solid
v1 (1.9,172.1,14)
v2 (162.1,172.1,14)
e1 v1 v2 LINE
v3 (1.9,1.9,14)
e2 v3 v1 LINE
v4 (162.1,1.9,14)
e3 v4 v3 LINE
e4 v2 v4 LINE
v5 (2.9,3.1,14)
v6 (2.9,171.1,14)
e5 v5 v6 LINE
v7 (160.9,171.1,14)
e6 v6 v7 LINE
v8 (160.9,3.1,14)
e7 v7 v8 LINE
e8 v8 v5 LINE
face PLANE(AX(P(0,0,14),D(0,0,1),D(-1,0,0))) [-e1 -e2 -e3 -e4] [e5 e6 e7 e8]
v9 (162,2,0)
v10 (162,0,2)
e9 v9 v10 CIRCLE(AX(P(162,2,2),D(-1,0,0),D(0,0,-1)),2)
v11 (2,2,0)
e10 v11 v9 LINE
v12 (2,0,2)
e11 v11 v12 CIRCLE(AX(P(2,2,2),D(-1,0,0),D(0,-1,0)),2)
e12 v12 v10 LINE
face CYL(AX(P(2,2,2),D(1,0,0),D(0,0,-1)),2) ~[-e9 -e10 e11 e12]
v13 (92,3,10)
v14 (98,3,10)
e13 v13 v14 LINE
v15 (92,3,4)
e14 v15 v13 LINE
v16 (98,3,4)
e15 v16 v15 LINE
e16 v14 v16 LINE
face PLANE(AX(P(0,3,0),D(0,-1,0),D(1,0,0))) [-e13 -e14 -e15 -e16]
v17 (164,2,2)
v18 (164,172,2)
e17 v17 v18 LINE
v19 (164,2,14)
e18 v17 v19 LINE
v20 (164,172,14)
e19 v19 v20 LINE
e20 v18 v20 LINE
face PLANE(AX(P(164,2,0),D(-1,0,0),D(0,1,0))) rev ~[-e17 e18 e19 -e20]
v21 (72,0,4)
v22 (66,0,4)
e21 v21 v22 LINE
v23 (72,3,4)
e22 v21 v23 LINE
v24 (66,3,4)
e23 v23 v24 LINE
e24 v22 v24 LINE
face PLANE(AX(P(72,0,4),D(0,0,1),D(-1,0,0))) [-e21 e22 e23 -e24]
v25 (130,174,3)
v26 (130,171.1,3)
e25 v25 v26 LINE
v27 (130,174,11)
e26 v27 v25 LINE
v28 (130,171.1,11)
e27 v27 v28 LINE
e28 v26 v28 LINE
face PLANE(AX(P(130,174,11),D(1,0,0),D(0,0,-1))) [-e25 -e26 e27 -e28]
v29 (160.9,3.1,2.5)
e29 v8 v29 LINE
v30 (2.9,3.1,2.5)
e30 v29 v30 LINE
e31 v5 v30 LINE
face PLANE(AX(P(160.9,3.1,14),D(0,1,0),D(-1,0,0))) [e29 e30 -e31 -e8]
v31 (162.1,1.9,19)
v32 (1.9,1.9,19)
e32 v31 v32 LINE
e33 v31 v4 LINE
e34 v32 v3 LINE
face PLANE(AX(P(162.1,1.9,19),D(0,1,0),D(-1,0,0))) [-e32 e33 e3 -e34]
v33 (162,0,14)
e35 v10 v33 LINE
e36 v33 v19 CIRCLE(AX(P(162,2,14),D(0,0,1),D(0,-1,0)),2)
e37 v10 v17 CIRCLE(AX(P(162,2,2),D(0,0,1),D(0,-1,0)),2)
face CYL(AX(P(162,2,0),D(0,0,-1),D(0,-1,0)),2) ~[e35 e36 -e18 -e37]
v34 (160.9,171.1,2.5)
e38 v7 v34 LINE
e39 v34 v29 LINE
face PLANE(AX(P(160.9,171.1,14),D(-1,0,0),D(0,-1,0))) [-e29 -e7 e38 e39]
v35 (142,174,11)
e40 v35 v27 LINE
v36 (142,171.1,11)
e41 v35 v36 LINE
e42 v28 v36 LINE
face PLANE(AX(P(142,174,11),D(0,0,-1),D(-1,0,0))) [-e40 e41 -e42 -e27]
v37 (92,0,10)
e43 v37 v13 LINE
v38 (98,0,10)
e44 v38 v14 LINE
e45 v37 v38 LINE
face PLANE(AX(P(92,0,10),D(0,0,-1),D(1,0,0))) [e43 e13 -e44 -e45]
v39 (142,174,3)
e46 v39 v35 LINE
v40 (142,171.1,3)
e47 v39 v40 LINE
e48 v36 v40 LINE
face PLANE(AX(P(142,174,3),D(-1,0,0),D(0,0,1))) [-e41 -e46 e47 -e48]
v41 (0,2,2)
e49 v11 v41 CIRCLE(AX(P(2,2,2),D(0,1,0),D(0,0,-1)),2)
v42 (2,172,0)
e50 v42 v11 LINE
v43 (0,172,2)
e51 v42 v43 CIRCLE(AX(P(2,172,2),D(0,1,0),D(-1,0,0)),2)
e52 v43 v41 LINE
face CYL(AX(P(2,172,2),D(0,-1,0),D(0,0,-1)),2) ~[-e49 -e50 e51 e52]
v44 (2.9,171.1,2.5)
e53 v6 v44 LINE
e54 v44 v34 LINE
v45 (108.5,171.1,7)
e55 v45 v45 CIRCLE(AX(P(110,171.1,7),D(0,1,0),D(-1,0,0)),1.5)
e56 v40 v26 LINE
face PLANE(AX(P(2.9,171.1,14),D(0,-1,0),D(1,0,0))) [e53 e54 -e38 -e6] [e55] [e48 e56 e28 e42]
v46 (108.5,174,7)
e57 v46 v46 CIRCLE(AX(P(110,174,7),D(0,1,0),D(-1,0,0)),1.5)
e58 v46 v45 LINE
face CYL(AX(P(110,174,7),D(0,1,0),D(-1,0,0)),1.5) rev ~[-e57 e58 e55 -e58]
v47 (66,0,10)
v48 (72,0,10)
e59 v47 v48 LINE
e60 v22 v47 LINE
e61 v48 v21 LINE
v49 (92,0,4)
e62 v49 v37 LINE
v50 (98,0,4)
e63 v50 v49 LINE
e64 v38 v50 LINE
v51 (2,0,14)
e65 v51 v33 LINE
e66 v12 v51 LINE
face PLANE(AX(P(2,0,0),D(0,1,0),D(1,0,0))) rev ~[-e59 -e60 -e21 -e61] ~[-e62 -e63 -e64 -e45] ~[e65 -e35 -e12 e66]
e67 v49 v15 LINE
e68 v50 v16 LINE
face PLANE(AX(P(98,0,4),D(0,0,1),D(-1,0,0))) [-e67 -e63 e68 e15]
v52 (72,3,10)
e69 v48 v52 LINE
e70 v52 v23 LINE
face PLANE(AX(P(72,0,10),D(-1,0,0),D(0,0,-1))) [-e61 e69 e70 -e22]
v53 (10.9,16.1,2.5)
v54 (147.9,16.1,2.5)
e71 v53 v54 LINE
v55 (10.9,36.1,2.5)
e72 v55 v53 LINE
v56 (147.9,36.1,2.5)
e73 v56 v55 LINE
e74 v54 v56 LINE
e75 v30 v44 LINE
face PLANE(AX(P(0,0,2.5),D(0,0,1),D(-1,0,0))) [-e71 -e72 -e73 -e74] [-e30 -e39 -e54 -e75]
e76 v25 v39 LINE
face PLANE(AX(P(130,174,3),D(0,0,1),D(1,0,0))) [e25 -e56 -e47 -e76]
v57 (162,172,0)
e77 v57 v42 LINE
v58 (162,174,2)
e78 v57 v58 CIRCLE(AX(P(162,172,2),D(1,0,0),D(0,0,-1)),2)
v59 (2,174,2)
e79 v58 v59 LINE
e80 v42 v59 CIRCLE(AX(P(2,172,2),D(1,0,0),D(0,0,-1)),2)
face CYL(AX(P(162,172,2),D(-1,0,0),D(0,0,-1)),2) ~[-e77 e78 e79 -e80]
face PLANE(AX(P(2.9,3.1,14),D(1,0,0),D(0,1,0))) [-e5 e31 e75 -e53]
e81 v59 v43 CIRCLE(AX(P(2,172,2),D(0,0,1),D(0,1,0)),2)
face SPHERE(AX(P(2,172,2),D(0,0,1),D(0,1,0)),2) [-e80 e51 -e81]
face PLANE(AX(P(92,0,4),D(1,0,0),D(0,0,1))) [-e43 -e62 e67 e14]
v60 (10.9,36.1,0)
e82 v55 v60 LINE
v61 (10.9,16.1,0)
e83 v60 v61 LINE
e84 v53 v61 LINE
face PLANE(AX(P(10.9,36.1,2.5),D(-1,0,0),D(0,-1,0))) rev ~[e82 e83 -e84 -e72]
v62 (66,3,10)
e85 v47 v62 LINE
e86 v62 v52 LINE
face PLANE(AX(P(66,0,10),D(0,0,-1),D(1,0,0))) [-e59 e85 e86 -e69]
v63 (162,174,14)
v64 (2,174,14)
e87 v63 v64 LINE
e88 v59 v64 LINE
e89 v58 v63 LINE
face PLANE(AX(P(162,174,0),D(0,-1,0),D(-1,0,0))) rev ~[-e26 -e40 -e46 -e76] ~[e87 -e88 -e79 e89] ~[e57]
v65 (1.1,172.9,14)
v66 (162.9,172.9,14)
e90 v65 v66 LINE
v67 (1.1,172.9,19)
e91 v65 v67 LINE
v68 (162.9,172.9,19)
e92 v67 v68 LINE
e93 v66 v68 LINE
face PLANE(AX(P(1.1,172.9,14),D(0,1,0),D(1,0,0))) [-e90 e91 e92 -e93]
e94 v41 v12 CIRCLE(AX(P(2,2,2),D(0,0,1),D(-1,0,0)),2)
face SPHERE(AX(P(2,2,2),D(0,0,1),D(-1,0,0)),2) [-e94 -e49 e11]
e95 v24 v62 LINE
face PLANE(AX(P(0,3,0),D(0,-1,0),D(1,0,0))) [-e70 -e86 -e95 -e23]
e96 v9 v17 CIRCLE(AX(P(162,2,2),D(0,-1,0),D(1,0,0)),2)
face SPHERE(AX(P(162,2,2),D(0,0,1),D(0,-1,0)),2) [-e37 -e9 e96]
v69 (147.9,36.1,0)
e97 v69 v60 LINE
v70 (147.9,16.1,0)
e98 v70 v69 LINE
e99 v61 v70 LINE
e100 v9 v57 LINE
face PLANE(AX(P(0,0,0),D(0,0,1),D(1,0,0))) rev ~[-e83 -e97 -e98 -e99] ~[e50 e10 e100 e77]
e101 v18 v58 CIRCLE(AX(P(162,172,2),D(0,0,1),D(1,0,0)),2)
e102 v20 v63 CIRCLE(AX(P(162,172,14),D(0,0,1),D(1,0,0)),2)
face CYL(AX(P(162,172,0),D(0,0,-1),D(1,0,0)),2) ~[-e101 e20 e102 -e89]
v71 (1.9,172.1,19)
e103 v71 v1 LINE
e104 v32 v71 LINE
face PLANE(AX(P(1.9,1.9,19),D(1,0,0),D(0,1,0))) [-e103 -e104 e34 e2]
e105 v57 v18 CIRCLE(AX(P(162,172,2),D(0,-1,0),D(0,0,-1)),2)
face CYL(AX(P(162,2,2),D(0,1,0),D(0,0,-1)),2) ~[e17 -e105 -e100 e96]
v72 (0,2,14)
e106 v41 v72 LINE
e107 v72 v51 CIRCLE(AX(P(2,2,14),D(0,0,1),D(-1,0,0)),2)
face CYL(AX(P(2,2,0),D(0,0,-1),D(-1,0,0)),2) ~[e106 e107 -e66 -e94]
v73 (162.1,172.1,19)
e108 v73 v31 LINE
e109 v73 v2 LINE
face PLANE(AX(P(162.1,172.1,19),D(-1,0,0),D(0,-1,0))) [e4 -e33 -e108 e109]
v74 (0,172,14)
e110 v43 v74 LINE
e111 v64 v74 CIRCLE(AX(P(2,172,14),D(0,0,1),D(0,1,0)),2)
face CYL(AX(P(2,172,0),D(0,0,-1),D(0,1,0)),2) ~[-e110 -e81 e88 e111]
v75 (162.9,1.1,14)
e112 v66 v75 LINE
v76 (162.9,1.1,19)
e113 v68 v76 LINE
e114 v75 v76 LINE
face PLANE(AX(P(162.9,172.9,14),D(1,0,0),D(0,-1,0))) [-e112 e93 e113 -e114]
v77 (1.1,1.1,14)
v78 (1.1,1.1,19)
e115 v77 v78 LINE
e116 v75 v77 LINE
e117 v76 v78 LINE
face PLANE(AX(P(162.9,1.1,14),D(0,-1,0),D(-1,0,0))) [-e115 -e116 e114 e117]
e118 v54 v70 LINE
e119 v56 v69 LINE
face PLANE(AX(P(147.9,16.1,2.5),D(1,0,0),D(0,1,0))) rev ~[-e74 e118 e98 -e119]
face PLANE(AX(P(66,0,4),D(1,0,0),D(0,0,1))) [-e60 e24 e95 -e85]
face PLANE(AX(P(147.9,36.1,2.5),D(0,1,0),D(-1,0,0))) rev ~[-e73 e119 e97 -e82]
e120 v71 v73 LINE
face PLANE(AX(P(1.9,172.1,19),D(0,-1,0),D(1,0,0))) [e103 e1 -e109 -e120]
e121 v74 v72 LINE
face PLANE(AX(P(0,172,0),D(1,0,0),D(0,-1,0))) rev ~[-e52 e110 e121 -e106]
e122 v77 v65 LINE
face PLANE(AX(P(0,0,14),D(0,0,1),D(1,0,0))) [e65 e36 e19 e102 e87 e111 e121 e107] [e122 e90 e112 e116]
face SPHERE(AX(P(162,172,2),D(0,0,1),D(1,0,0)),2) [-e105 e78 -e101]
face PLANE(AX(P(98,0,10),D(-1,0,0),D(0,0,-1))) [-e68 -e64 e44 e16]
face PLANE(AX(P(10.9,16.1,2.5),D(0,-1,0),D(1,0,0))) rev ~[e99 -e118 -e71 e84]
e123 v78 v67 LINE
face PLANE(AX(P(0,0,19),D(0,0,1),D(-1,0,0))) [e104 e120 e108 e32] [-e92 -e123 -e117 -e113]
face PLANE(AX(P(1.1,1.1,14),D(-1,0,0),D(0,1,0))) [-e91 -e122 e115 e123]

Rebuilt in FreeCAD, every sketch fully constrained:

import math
import FreeCAD as App
import Part
import Sketcher

V = App.Vector


def edges_at(feature, points):
    """Names of the edges that pass closest to the given points."""
    edges = feature.Shape.Edges
    near = lambda p: min(range(len(edges)), key=lambda i: edges[i].distToShape(Part.Vertex(*p))[0])
    return sorted({f"Edge{near(p) + 1}" for p in points})


def add_polygon(sketch, points):
    """Adds a closed chain of lines whose ends are joined by coincident constraints."""
    first, n = sketch.GeometryCount, len(points)
    for a, b in zip(points, points[1:] + points[:1]):
        sketch.addGeometry(Part.LineSegment(App.Vector(*a, 0), App.Vector(*b, 0)), False)
    for i in range(n):
        sketch.addConstraint(Sketcher.Constraint("Coincident", first + i, 2, first + (i + 1) % n, 1))

doc = App.newDocument("Part")
body = doc.addObject("PartDesign::Body", "Body")

sketch1 = body.newObject("Sketcher::SketchObject", "Sketch")
sketch1.AttachmentSupport = (doc.getObject("XY_Plane"), [""])
sketch1.MapMode = "FlatFace"
sketch1.addGeometry([
    Part.ArcOfCircle(Part.Circle(V(2, 2, 0), V(0, 0, 1), 2), math.radians(180), math.radians(270)),
    Part.LineSegment(V(2, 0, 0), V(162, 0, 0)),
    Part.ArcOfCircle(Part.Circle(V(162, 2, 0), V(0, 0, 1), 2), math.radians(-90), math.radians(0)),
    Part.LineSegment(V(164, 2, 0), V(164, 172, 0)),
    Part.ArcOfCircle(Part.Circle(V(162, 172, 0), V(0, 0, 1), 2), math.radians(0), math.radians(90)),
    Part.LineSegment(V(162, 174, 0), V(2, 174, 0)),
    Part.ArcOfCircle(Part.Circle(V(2, 172, 0), V(0, 0, 1), 2), math.radians(90), math.radians(180)),
    Part.LineSegment(V(0, 172, 0), V(0, 2, 0)),
], False)
sketch1.addConstraint([
    Sketcher.Constraint("Tangent", 0, 2, 1, 1),
    Sketcher.Constraint("Tangent", 1, 2, 2, 1),
    Sketcher.Constraint("Tangent", 2, 2, 3, 1),
    Sketcher.Constraint("Tangent", 3, 2, 4, 1),
    Sketcher.Constraint("Tangent", 4, 2, 5, 1),
    Sketcher.Constraint("Tangent", 5, 2, 6, 1),
    Sketcher.Constraint("Tangent", 6, 2, 7, 1),
    Sketcher.Constraint("Tangent", 7, 2, 0, 1),
    Sketcher.Constraint("Horizontal", 1),
    Sketcher.Constraint("Vertical", 3),
    Sketcher.Constraint("Horizontal", 5),
    Sketcher.Constraint("Vertical", 7),
    Sketcher.Constraint("Equal", 0, 2),
    Sketcher.Constraint("Equal", 2, 4),
    Sketcher.Constraint("Equal", 4, 6),
    Sketcher.Constraint("PointOnObject", 0, 2, -1),
    Sketcher.Constraint("PointOnObject", 6, 2, -2),
    Sketcher.Constraint("Radius", 0, 2.0),
    Sketcher.Constraint("DistanceX", -1, 1, 2, 2, 164.0),
    Sketcher.Constraint("DistanceY", -1, 1, 4, 2, 174.0),
])
pad1 = body.newObject("PartDesign::Pad", "Pad")
pad1.Profile = sketch1
pad1.Length = 14

sketch2 = body.newObject("Sketcher::SketchObject", "Sketch001")
sketch2.AttachmentSupport = (doc.getObject("XY_Plane"), [""])
sketch2.MapMode = "FlatFace"
sketch2.AttachmentOffset = App.Placement(V(0, 0, 14), App.Rotation())
add_polygon(sketch2, [(163, 173), (1, 173), (1, 1), (163, 1)])
sketch2.addConstraint([
    Sketcher.Constraint("Horizontal", 0),
    Sketcher.Constraint("Vertical", 1),
    Sketcher.Constraint("Horizontal", 2),
    Sketcher.Constraint("Vertical", 3),
    Sketcher.Constraint("DistanceX", 0, 2, 0, 1, 161.8),
    Sketcher.Constraint("DistanceY", 1, 2, 1, 1, 171.8),
    Sketcher.Constraint("DistanceX", -1, 1, 0, 2, 1.1),
    Sketcher.Constraint("DistanceY", -1, 1, 1, 2, 1.1),
])
pad2 = body.newObject("PartDesign::Pad", "Pad001")
pad2.Profile = sketch2
pad2.Length = 5

sketch3 = body.newObject("Sketcher::SketchObject", "Sketch002")
sketch3.AttachmentSupport = (doc.getObject("XY_Plane"), [""])
sketch3.MapMode = "FlatFace"
sketch3.AttachmentOffset = App.Placement(V(0, 0, 19), App.Rotation())
add_polygon(sketch3, [(162, 172), (2, 172), (2, 2), (162, 2)])
sketch3.addConstraint([
    Sketcher.Constraint("Horizontal", 0),
    Sketcher.Constraint("Vertical", 1),
    Sketcher.Constraint("Horizontal", 2),
    Sketcher.Constraint("Vertical", 3),
    Sketcher.Constraint("DistanceX", 0, 2, 0, 1, 160.2),
    Sketcher.Constraint("DistanceY", 1, 2, 1, 1, 170.2),
    Sketcher.Constraint("DistanceX", -1, 1, 0, 2, 1.9),
    Sketcher.Constraint("DistanceY", -1, 1, 0, 2, 172.1),
])
pocket1 = body.newObject("PartDesign::Pocket", "Pocket")
pocket1.Profile = sketch3
pocket1.Length = 5

sketch4 = body.newObject("Sketcher::SketchObject", "Sketch003")
sketch4.AttachmentSupport = (doc.getObject("XY_Plane"), [""])
sketch4.MapMode = "FlatFace"
sketch4.AttachmentOffset = App.Placement(V(0, 0, 14), App.Rotation())
add_polygon(sketch4, [(161, 171), (3, 171), (3, 3), (161, 3)])
sketch4.addConstraint([
    Sketcher.Constraint("Horizontal", 0),
    Sketcher.Constraint("Vertical", 1),
    Sketcher.Constraint("Horizontal", 2),
    Sketcher.Constraint("Vertical", 3),
    Sketcher.Constraint("DistanceX", 0, 2, 0, 1, 158.0),
    Sketcher.Constraint("DistanceY", 1, 2, 1, 1, 168.0),
    Sketcher.Constraint("DistanceX", -1, 1, 0, 2, 2.9),
    Sketcher.Constraint("DistanceY", -1, 1, 0, 2, 171.1),
])
pocket2 = body.newObject("PartDesign::Pocket", "Pocket001")
pocket2.Profile = sketch4
pocket2.Length = 11.5

sketch5 = body.newObject("Sketcher::SketchObject", "Sketch004")
sketch5.AttachmentSupport = (doc.getObject("XY_Plane"), [""])
sketch5.MapMode = "FlatFace"
sketch5.AttachmentOffset = App.Placement(V(0, 0, 2.5), App.Rotation())
add_polygon(sketch5, [(11, 36), (11, 16), (148, 16), (148, 36)])
sketch5.addConstraint([
    Sketcher.Constraint("Vertical", 0),
    Sketcher.Constraint("Horizontal", 1),
    Sketcher.Constraint("Vertical", 2),
    Sketcher.Constraint("Horizontal", 3),
    Sketcher.Constraint("DistanceX", 1, 1, 1, 2, 137.0),
    Sketcher.Constraint("DistanceY", 0, 2, 0, 1, 20.0),
    Sketcher.Constraint("DistanceX", -1, 1, 0, 2, 10.9),
    Sketcher.Constraint("DistanceY", -1, 1, 0, 2, 16.1),
])
pocket3 = body.newObject("PartDesign::Pocket", "Pocket002")
pocket3.Profile = sketch5
pocket3.Length = 2.5

sketch6 = body.newObject("Sketcher::SketchObject", "Sketch005")
sketch6.AttachmentSupport = (doc.getObject("XZ_Plane"), [""])
sketch6.MapMode = "FlatFace"
add_polygon(sketch6, [(72, 10), (66, 10), (66, 4), (72, 4)])
sketch6.addConstraint([
    Sketcher.Constraint("Horizontal", 0),
    Sketcher.Constraint("Vertical", 1),
    Sketcher.Constraint("Horizontal", 2),
    Sketcher.Constraint("Vertical", 3),
    Sketcher.Constraint("Equal", 2, 1),
    Sketcher.Constraint("DistanceX", 0, 2, 0, 1, 6.0),
    Sketcher.Constraint("DistanceY", -1, 1, 1, 2, 4.0),
    Sketcher.Constraint("DistanceX", -1, 1, 0, 2, 66.0),
])
pocket4 = body.newObject("PartDesign::Pocket", "Pocket003")
pocket4.Profile = sketch6
pocket4.Length = 3

sketch7 = body.newObject("Sketcher::SketchObject", "Sketch006")
sketch7.AttachmentSupport = (doc.getObject("XZ_Plane"), [""])
sketch7.MapMode = "FlatFace"
add_polygon(sketch7, [(98, 10), (92, 10), (92, 4), (98, 4)])
sketch7.addConstraint([
    Sketcher.Constraint("Horizontal", 0),
    Sketcher.Constraint("Vertical", 1),
    Sketcher.Constraint("Horizontal", 2),
    Sketcher.Constraint("Vertical", 3),
    Sketcher.Constraint("Equal", 2, 1),
    Sketcher.Constraint("DistanceX", 0, 2, 0, 1, 6.0),
    Sketcher.Constraint("DistanceY", -1, 1, 1, 2, 4.0),
    Sketcher.Constraint("DistanceX", -1, 1, 0, 2, 92.0),
])
pocket5 = body.newObject("PartDesign::Pocket", "Pocket004")
pocket5.Profile = sketch7
pocket5.Length = 3

sketch8 = body.newObject("Sketcher::SketchObject", "Sketch007")
sketch8.AttachmentSupport = (doc.getObject("XZ_Plane"), [""])
sketch8.MapMode = "FlatFace"
sketch8.AttachmentOffset = App.Placement(V(0, 0, -174), App.Rotation())
add_polygon(sketch8, [(130, 11), (142, 11), (142, 3), (130, 3)])
sketch8.addConstraint([
    Sketcher.Constraint("Horizontal", 0),
    Sketcher.Constraint("Vertical", 1),
    Sketcher.Constraint("Horizontal", 2),
    Sketcher.Constraint("Vertical", 3),
    Sketcher.Constraint("DistanceX", 0, 1, 0, 2, 12.0),
    Sketcher.Constraint("DistanceY", 1, 2, 1, 1, 8.0),
    Sketcher.Constraint("DistanceY", -1, 1, 1, 2, 3.0),
    Sketcher.Constraint("DistanceX", -1, 1, 0, 2, 142.0),
])
pocket6 = body.newObject("PartDesign::Pocket", "Pocket005")
pocket6.Profile = sketch8
pocket6.Length = 3
pocket6.Reversed = True

sketch9 = body.newObject("Sketcher::SketchObject", "Sketch008")
sketch9.AttachmentSupport = (doc.getObject("XZ_Plane"), [""])
sketch9.MapMode = "FlatFace"
sketch9.AttachmentOffset = App.Placement(V(0, 0, -174), App.Rotation())
sketch9.addGeometry(Part.Circle(V(110, 7, 0), V(0, 0, 1), 1.5), False)
sketch9.addConstraint([
    Sketcher.Constraint("Diameter", 0, 3.0),
    Sketcher.Constraint("DistanceY", -1, 1, 0, 3, 7.0),
    Sketcher.Constraint("DistanceX", -1, 1, 0, 3, 110.0),
])
pocket7 = body.newObject("PartDesign::Pocket", "Pocket006")
pocket7.Profile = sketch9
pocket7.Length = 3
pocket7.Reversed = True
doc.recompute()

fillet = body.newObject("PartDesign::Fillet", "Fillet")
fillet.Base = (pocket7, edges_at(pocket7, [
    (82, 174, 0),
    (0.586, 173.414, 0),
    (0, 87, 0),
    (0.586, 0.586, 0),
    (82, 0, 0),
    (163.414, 0.586, 0),
    (164, 87, 0),
    (163.414, 173.414, 0),
]))
fillet.Radius = 2

doc.recompute()
